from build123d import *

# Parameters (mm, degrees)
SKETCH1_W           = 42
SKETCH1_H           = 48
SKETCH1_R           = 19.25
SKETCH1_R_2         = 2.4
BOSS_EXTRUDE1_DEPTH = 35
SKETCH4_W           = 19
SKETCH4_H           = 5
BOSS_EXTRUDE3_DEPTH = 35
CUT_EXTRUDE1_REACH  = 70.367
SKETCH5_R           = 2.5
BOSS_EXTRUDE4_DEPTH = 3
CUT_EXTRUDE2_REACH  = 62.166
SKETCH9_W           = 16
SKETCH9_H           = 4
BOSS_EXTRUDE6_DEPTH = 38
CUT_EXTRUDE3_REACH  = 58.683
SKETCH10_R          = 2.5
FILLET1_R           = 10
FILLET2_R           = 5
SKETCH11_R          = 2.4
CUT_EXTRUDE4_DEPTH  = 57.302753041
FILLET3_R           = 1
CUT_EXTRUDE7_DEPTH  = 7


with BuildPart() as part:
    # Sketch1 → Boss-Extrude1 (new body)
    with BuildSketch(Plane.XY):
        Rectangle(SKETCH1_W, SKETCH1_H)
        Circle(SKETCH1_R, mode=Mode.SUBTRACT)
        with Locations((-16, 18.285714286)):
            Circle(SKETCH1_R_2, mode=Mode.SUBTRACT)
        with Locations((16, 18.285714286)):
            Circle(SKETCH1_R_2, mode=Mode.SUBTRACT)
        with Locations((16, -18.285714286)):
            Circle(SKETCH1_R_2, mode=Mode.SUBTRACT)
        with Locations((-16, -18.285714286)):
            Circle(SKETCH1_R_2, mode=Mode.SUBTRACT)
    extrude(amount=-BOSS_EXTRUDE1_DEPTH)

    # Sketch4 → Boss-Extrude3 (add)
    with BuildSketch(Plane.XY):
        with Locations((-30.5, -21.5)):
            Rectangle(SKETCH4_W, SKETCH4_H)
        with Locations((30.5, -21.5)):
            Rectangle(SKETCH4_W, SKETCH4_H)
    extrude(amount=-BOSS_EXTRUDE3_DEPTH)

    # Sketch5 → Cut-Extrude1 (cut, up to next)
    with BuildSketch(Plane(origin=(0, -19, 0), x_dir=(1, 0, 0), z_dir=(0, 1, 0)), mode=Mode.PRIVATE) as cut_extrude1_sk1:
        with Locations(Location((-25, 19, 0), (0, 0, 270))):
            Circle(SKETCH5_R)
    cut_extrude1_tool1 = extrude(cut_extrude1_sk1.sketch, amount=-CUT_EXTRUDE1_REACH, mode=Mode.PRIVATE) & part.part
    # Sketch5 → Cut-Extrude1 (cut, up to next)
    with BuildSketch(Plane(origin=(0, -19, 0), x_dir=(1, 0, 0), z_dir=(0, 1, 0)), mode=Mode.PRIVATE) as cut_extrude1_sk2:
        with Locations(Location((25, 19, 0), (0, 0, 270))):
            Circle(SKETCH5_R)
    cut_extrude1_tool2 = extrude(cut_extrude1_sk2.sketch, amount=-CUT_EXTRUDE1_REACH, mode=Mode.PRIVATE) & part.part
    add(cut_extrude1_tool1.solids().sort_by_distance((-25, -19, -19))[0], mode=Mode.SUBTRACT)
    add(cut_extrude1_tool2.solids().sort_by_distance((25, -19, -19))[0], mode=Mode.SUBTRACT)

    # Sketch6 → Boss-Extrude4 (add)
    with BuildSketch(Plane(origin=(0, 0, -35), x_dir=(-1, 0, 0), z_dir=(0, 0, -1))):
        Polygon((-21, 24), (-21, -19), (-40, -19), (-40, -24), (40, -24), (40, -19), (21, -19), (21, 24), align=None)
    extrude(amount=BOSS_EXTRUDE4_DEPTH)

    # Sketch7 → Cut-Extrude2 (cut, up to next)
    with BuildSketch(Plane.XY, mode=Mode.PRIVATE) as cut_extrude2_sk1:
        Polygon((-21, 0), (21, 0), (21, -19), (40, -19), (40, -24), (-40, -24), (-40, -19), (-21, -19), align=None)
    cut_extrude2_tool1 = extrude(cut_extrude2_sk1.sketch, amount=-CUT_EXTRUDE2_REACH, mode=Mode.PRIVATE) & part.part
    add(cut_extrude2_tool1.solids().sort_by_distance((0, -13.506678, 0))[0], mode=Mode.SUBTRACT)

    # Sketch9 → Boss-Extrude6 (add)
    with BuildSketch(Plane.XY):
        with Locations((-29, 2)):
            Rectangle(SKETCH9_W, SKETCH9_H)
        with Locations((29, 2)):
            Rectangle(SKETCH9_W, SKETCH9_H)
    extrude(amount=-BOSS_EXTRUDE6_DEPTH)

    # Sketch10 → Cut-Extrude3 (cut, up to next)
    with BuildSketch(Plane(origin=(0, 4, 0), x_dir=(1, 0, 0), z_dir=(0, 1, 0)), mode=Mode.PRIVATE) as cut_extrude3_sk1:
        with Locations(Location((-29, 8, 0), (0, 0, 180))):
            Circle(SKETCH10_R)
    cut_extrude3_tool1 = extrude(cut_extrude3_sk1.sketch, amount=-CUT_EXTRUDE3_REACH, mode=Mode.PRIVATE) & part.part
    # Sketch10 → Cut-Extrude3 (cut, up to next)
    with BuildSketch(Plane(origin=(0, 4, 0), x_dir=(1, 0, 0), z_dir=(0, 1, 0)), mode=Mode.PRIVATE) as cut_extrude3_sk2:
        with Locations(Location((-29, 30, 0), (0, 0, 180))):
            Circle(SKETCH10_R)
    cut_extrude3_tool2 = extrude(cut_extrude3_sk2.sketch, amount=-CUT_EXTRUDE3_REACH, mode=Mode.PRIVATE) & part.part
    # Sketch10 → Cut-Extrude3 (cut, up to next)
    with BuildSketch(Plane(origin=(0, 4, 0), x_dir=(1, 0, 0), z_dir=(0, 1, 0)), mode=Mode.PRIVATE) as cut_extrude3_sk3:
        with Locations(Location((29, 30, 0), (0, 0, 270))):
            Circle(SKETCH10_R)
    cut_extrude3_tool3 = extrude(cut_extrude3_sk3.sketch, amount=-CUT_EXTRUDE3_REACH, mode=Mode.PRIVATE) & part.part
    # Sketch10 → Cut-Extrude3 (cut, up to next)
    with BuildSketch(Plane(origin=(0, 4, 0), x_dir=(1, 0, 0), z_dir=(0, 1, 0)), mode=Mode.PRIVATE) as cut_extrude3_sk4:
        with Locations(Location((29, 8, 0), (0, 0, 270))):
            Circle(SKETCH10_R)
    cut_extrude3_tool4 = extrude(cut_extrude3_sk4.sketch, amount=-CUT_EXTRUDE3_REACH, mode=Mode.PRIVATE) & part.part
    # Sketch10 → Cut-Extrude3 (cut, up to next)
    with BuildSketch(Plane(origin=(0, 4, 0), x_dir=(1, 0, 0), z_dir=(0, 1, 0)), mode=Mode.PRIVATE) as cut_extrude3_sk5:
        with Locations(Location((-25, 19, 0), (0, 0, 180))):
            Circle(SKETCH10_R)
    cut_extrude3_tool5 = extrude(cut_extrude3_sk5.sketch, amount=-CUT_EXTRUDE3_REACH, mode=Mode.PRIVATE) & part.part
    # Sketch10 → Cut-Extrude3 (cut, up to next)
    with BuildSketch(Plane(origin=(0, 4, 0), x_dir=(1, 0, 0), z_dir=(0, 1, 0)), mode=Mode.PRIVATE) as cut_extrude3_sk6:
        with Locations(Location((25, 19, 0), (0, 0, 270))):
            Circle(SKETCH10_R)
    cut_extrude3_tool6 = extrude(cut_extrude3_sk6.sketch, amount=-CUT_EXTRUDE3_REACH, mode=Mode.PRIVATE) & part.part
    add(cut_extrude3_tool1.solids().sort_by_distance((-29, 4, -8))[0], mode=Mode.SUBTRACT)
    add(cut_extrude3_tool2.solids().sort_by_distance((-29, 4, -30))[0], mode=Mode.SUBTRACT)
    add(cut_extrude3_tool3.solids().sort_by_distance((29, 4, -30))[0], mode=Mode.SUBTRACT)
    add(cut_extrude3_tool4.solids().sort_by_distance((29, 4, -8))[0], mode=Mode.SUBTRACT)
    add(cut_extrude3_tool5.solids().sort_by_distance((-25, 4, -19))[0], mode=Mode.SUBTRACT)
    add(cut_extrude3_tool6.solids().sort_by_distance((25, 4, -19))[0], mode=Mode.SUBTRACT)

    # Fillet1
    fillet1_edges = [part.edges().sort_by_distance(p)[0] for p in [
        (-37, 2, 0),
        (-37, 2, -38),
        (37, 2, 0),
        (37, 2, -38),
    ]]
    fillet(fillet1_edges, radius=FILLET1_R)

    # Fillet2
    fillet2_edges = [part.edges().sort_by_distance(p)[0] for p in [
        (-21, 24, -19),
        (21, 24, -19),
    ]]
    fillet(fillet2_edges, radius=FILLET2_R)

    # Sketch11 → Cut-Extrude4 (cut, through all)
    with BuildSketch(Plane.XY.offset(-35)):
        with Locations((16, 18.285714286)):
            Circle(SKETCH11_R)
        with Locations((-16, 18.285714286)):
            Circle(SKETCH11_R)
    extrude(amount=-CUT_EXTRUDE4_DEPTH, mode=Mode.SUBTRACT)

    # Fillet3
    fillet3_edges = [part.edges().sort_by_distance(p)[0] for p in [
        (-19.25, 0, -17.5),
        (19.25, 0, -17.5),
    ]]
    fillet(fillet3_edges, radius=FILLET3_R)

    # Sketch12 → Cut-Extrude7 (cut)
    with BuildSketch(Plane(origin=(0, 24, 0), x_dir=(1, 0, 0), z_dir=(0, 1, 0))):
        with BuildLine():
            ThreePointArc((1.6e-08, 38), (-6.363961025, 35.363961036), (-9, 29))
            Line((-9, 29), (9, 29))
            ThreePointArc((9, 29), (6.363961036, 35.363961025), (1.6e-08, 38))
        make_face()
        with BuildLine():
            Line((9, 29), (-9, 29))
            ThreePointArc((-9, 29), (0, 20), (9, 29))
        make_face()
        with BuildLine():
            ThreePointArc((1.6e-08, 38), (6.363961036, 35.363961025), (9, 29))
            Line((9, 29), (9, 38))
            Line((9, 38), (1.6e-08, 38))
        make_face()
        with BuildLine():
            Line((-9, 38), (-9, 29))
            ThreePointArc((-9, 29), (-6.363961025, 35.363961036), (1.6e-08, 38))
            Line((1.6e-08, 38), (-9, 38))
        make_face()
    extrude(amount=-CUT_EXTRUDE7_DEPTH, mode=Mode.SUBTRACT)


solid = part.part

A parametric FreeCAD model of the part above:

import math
import FreeCAD as App
import Part
import Sketcher
from FreeCAD import Vector
Q = App.Units.Quantity


def edges_at(feature, points):
    """Names of the edges that pass closest to the given points."""
    edges = feature.Shape.Edges
    near = lambda p: min(range(len(edges)), key=lambda i: edges[i].distToShape(Part.Vertex(*p))[0])
    return sorted({f"Edge{near(p) + 1}" for p in points})


def add_polygon(sketch, points):
    """Adds a closed chain of lines whose ends are joined by coincident constraints."""
    first, n = sketch.GeometryCount, len(points)
    for a, b in zip(points, points[1:] + points[:1]):
        sketch.addGeometry(Part.LineSegment(App.Vector(*a, 0), App.Vector(*b, 0)), False)
    for i in range(n):
        sketch.addConstraint(Sketcher.Constraint("Coincident", first + i, 2, first + (i + 1) % n, 1))

doc = App.newDocument("Part")
body = doc.addObject("PartDesign::Body", "Body")

sketch1 = body.newObject("Sketcher::SketchObject", "Sketch")
sketch1.AttachmentSupport = (doc.getObject("XY_Plane"), [""])
sketch1.MapMode = "FlatFace"
add_polygon(sketch1, [(-21, 24), (-21, -24), (21, -24), (21, 24)])
sketch1.addGeometry(Part.Circle(Vector(-16, -18.285714, 0), Vector(0, 0, 1), 2.4), False)
sketch1.addGeometry(Part.Circle(Vector(16, -18.285714, 0), Vector(0, 0, 1), 2.4), False)
sketch1.addGeometry(Part.Circle(Vector(-16, 18.285714, 0), Vector(0, 0, 1), 2.4), False)
sketch1.addGeometry(Part.Circle(Vector(0, 0, 0), Vector(0, 0, 1), 19.25), False)
sketch1.addGeometry(Part.Circle(Vector(16, 18.285714, 0), Vector(0, 0, 1), 2.4), False)
sketch1.addConstraint([
    Sketcher.Constraint("Vertical", 0),
    Sketcher.Constraint("Horizontal", 1),
    Sketcher.Constraint("Vertical", 2),
    Sketcher.Constraint("Horizontal", 3),
    Sketcher.Constraint("Coincident", 7, 3, -1, 1),
    Sketcher.Constraint("Equal", 4, 5),
    Sketcher.Constraint("Equal", 5, 6),
    Sketcher.Constraint("Equal", 6, 8),
    Sketcher.Constraint("Symmetric", 5, 3, 6, 3, -1, 1),
    Sketcher.Constraint("Symmetric", 4, 3, 8, 3, -1, 1),
    Sketcher.Constraint("Symmetric", 0, 2, 2, 2, -1, 1),
    Sketcher.Constraint("Symmetric", 4, 3, 5, 3, -2),
    Sketcher.Constraint("Diameter", 4, Q("4.8 mm")),
    Sketcher.Constraint("Diameter", 7, Q("38.5 mm")),
    Sketcher.Constraint("DistanceX", 1, 1, 1, 2, Q("42 mm")),
    Sketcher.Constraint("DistanceY", 0, 2, 0, 1, Q("48 mm")),
    Sketcher.Constraint("DistanceX", 4, 3, -1, 1, Q("16 mm")),
    Sketcher.Constraint("DistanceY", 4, 3, 6, 3, Q("36.571429 mm")),
])
pad1 = body.newObject("PartDesign::Pad", "Pad")
pad1.Profile = sketch1
pad1.Length = 35
pad1.Reversed = True

sketch2 = body.newObject("Sketcher::SketchObject", "Sketch001")
sketch2.AttachmentSupport = (doc.getObject("XY_Plane"), [""])
sketch2.MapMode = "FlatFace"
add_polygon(sketch2, [(-40, -19), (-40, -24), (-21, -24), (-21, -19)])
add_polygon(sketch2, [(21, -19), (21, -24), (40, -24), (40, -19)])
sketch2.addConstraint([
    Sketcher.Constraint("Vertical", 0),
    Sketcher.Constraint("Horizontal", 1),
    Sketcher.Constraint("Vertical", 2),
    Sketcher.Constraint("Horizontal", 3),
    Sketcher.Constraint("Vertical", 4),
    Sketcher.Constraint("Horizontal", 5),
    Sketcher.Constraint("Vertical", 6),
    Sketcher.Constraint("Horizontal", 7),
    Sketcher.Constraint("Symmetric", 1, 2, 4, 2, -2),
    Sketcher.Constraint("Symmetric", 3, 2, 6, 2, -2),
    Sketcher.Constraint("DistanceX", 1, 1, 1, 2, Q("19 mm")),
    Sketcher.Constraint("DistanceY", 0, 2, 0, 1, Q("5 mm")),
    Sketcher.Constraint("DistanceX", 0, 2, -1, 1, Q("40 mm")),
    Sketcher.Constraint("DistanceY", 0, 2, -1, 1, Q("24 mm")),
])
pad2 = body.newObject("PartDesign::Pad", "Pad001")
pad2.Profile = sketch2
pad2.Length = 35
pad2.Reversed = True

sketch3 = body.newObject("Sketcher::SketchObject", "Sketch002")
sketch3.AttachmentSupport = (doc.getObject("XZ_Plane"), [""])
sketch3.MapMode = "FlatFace"
sketch3.AttachmentOffset = App.Placement(Vector(0, 0, 19), App.Rotation())
sketch3.addGeometry(Part.Circle(Vector(-25, -19, 0), Vector(0, 0, 1), 2.5), False)
sketch3.addConstraint([
    Sketcher.Constraint("Diameter", 0, Q("5 mm")),
    Sketcher.Constraint("DistanceX", 0, 3, -1, 1, Q("25 mm")),
    Sketcher.Constraint("DistanceY", 0, 3, -1, 1, Q("19 mm")),
])
pocket1 = body.newObject("PartDesign::Pocket", "Pocket")
pocket1.Profile = sketch3
pocket1.Type = "UpToFirst"
pocket1.Reversed = True

sketch4 = body.newObject("Sketcher::SketchObject", "Sketch003")
sketch4.AttachmentSupport = (doc.getObject("XZ_Plane"), [""])
sketch4.MapMode = "FlatFace"
sketch4.AttachmentOffset = App.Placement(Vector(0, 0, 19), App.Rotation())
sketch4.addGeometry(Part.Circle(Vector(25, -19, 0), Vector(0, 0, 1), 2.5), False)
sketch4.addConstraint([
    Sketcher.Constraint("Diameter", 0, Q("5 mm")),
    Sketcher.Constraint("DistanceX", -1, 1, 0, 3, Q("25 mm")),
    Sketcher.Constraint("DistanceY", 0, 3, -1, 1, Q("19 mm")),
])
pocket2 = body.newObject("PartDesign::Pocket", "Pocket001")
pocket2.Profile = sketch4
pocket2.Type = "UpToFirst"
pocket2.Reversed = True

sketch5 = body.newObject("Sketcher::SketchObject", "Sketch004")
sketch5.AttachmentSupport = (doc.getObject("XY_Plane"), [""])
sketch5.MapMode = "FlatFace"
sketch5.AttachmentOffset = App.Placement(Vector(0, 0, -35), App.Rotation())
add_polygon(sketch5, [(21, 24), (21, -19), (40, -19), (40, -24), (-40, -24), (-40, -19), (-21, -19), (-21, 24)])
sketch5.addConstraint([
    Sketcher.Constraint("Vertical", 0),
    Sketcher.Constraint("Horizontal", 1),
    Sketcher.Constraint("Vertical", 2),
    Sketcher.Constraint("Horizontal", 3),
    Sketcher.Constraint("Vertical", 4),
    Sketcher.Constraint("Horizontal", 5),
    Sketcher.Constraint("Vertical", 6),
    Sketcher.Constraint("Horizontal", 7),
    Sketcher.Constraint("Symmetric", 1, 2, 4, 2, -2),
    Sketcher.Constraint("Equal", 1, 5),
    Sketcher.Constraint("DistanceX", 1, 1, 1, 2, Q("19 mm")),
    Sketcher.Constraint("DistanceX", 3, 2, 3, 1, Q("80 mm")),
    Sketcher.Constraint("DistanceY", 0, 2, 0, 1, Q("43 mm")),
    Sketcher.Constraint("DistanceY", 2, 2, 2, 1, Q("5 mm")),
    Sketcher.Constraint("DistanceY", 0, 2, -1, 1, Q("19 mm")),
])
pad3 = body.newObject("PartDesign::Pad", "Pad002")
pad3.Profile = sketch5
pad3.Length = 3
pad3.Reversed = True

sketch6 = body.newObject("Sketcher::SketchObject", "Sketch005")
sketch6.AttachmentSupport = (doc.getObject("XY_Plane"), [""])
sketch6.MapMode = "FlatFace"
add_polygon(sketch6, [(21, 0), (-21, 0), (-21, -19), (-40, -19), (-40, -24), (40, -24), (40, -19), (21, -19)])
sketch6.addConstraint([
    Sketcher.Constraint("Horizontal", 0),
    Sketcher.Constraint("Vertical", 1),
    Sketcher.Constraint("Horizontal", 2),
    Sketcher.Constraint("Vertical", 3),
    Sketcher.Constraint("Horizontal", 4),
    Sketcher.Constraint("Vertical", 5),
    Sketcher.Constraint("Horizontal", 6),
    Sketcher.Constraint("Vertical", 7),
    Sketcher.Constraint("Symmetric", 0, 2, 7, 2, -1, 1),
    Sketcher.Constraint("Symmetric", 2, 2, 5, 2, -2),
    Sketcher.Constraint("Equal", 6, 1),
    Sketcher.Constraint("DistanceX", 0, 2, 0, 1, Q("42 mm")),
    Sketcher.Constraint("DistanceX", 2, 2, 2, 1, Q("19 mm")),
    Sketcher.Constraint("DistanceY", 3, 2, 3, 1, Q("5 mm")),
])
pocket3 = body.newObject("PartDesign::Pocket", "Pocket002")
pocket3.Profile = sketch6
pocket3.Length = 38

sketch7 = body.newObject("Sketcher::SketchObject", "Sketch006")
sketch7.AttachmentSupport = (doc.getObject("XY_Plane"), [""])
sketch7.MapMode = "FlatFace"
add_polygon(sketch7, [(-37, 4), (-37, 0), (-21, 0), (-21, 4)])
add_polygon(sketch7, [(21, 4), (21, 0), (37, 0), (37, 4)])
sketch7.addConstraint([
    Sketcher.Constraint("Vertical", 0),
    Sketcher.Constraint("Horizontal", 1),
    Sketcher.Constraint("Vertical", 2),
    Sketcher.Constraint("Horizontal", 3),
    Sketcher.Constraint("Vertical", 4),
    Sketcher.Constraint("Horizontal", 5),
    Sketcher.Constraint("Vertical", 6),
    Sketcher.Constraint("Horizontal", 7),
    Sketcher.Constraint("Symmetric", 1, 2, 4, 2, -1, 1),
    Sketcher.Constraint("Symmetric", 0, 2, 5, 2, -2),
    Sketcher.Constraint("Horizontal", 3, 2, 6, 2),
    Sketcher.Constraint("DistanceX", 1, 1, 1, 2, Q("16 mm")),
    Sketcher.Constraint("DistanceY", 0, 2, 0, 1, Q("4 mm")),
    Sketcher.Constraint("DistanceX", 0, 2, -1, 1, Q("37 mm")),
])
pad4 = body.newObject("PartDesign::Pad", "Pad003")
pad4.Profile = sketch7
pad4.Length = 38
pad4.Reversed = True

sketch8 = body.newObject("Sketcher::SketchObject", "Sketch007")
sketch8.AttachmentSupport = (doc.getObject("XZ_Plane"), [""])
sketch8.MapMode = "FlatFace"
sketch8.AttachmentOffset = App.Placement(Vector(0, 0, -4), App.Rotation())
sketch8.addGeometry(Part.Circle(Vector(-29, -8, 0), Vector(0, 0, 1), 2.5), False)
sketch8.addConstraint([
    Sketcher.Constraint("Diameter", 0, Q("5 mm")),
    Sketcher.Constraint("DistanceX", 0, 3, -1, 1, Q("29 mm")),
    Sketcher.Constraint("DistanceY", 0, 3, -1, 1, Q("8 mm")),
])
pocket4 = body.newObject("PartDesign::Pocket", "Pocket003")
pocket4.Profile = sketch8
pocket4.Type = "UpToFirst"
pocket4.Reversed = True

sketch9 = body.newObject("Sketcher::SketchObject", "Sketch008")
sketch9.AttachmentSupport = (doc.getObject("XZ_Plane"), [""])
sketch9.MapMode = "FlatFace"
sketch9.AttachmentOffset = App.Placement(Vector(0, 0, -4), App.Rotation())
sketch9.addGeometry(Part.Circle(Vector(-29, -30, 0), Vector(0, 0, 1), 2.5), False)
sketch9.addConstraint([
    Sketcher.Constraint("Diameter", 0, Q("5 mm")),
    Sketcher.Constraint("DistanceX", 0, 3, -1, 1, Q("29 mm")),
    Sketcher.Constraint("DistanceY", 0, 3, -1, 1, Q("30 mm")),
])
pocket5 = body.newObject("PartDesign::Pocket", "Pocket004")
pocket5.Profile = sketch9
pocket5.Type = "UpToFirst"
pocket5.Reversed = True

sketch10 = body.newObject("Sketcher::SketchObject", "Sketch009")
sketch10.AttachmentSupport = (doc.getObject("XZ_Plane"), [""])
sketch10.MapMode = "FlatFace"
sketch10.AttachmentOffset = App.Placement(Vector(0, 0, -4), App.Rotation())
sketch10.addGeometry(Part.Circle(Vector(29, -30, 0), Vector(0, 0, 1), 2.5), False)
sketch10.addConstraint([
    Sketcher.Constraint("Diameter", 0, Q("5 mm")),
    Sketcher.Constraint("DistanceX", -1, 1, 0, 3, Q("29 mm")),
    Sketcher.Constraint("DistanceY", 0, 3, -1, 1, Q("30 mm")),
])
pocket6 = body.newObject("PartDesign::Pocket", "Pocket005")
pocket6.Profile = sketch10
pocket6.Type = "UpToFirst"
pocket6.Reversed = True

sketch11 = body.newObject("Sketcher::SketchObject", "Sketch010")
sketch11.AttachmentSupport = (doc.getObject("XZ_Plane"), [""])
sketch11.MapMode = "FlatFace"
sketch11.AttachmentOffset = App.Placement(Vector(0, 0, -4), App.Rotation())
sketch11.addGeometry(Part.Circle(Vector(29, -8, 0), Vector(0, 0, 1), 2.5), False)
sketch11.addConstraint([
    Sketcher.Constraint("Diameter", 0, Q("5 mm")),
    Sketcher.Constraint("DistanceX", -1, 1, 0, 3, Q("29 mm")),
    Sketcher.Constraint("DistanceY", 0, 3, -1, 1, Q("8 mm")),
])
pocket7 = body.newObject("PartDesign::Pocket", "Pocket006")
pocket7.Profile = sketch11
pocket7.Type = "UpToFirst"
pocket7.Reversed = True

sketch12 = body.newObject("Sketcher::SketchObject", "Sketch011")
sketch12.AttachmentSupport = (doc.getObject("XZ_Plane"), [""])
sketch12.MapMode = "FlatFace"
sketch12.AttachmentOffset = App.Placement(Vector(0, 0, -4), App.Rotation())
sketch12.addGeometry(Part.Circle(Vector(-25, -19, 0), Vector(0, 0, 1), 2.5), False)
sketch12.addConstraint([
    Sketcher.Constraint("Diameter", 0, Q("5 mm")),
    Sketcher.Constraint("DistanceX", 0, 3, -1, 1, Q("25 mm")),
    Sketcher.Constraint("DistanceY", 0, 3, -1, 1, Q("19 mm")),
])
pocket8 = body.newObject("PartDesign::Pocket", "Pocket007")
pocket8.Profile = sketch12
pocket8.Type = "UpToFirst"
pocket8.Reversed = True

sketch13 = body.newObject("Sketcher::SketchObject", "Sketch012")
sketch13.AttachmentSupport = (doc.getObject("XZ_Plane"), [""])
sketch13.MapMode = "FlatFace"
sketch13.AttachmentOffset = App.Placement(Vector(0, 0, -4), App.Rotation())
sketch13.addGeometry(Part.Circle(Vector(25, -19, 0), Vector(0, 0, 1), 2.5), False)
sketch13.addConstraint([
    Sketcher.Constraint("Diameter", 0, Q("5 mm")),
    Sketcher.Constraint("DistanceX", -1, 1, 0, 3, Q("25 mm")),
    Sketcher.Constraint("DistanceY", 0, 3, -1, 1, Q("19 mm")),
])
pocket9 = body.newObject("PartDesign::Pocket", "Pocket008")
pocket9.Profile = sketch13
pocket9.Type = "UpToFirst"
pocket9.Reversed = True
doc.recompute()

fillet = body.newObject("PartDesign::Fillet", "Fillet")
fillet.Base = (pocket9, edges_at(pocket9, [
    (-37, 2, 0),
    (-37, 2, -38),
    (37, 2, 0),
    (37, 2, -38),
]))
fillet.Radius = 10
doc.recompute()

fillet2 = body.newObject("PartDesign::Fillet", "Fillet001")
fillet2.Base = (fillet, edges_at(fillet, [(-21, 24, -19), (21, 24, -19)]))
fillet2.Radius = 5

sketch14 = body.newObject("Sketcher::SketchObject", "Sketch013")
sketch14.AttachmentSupport = (doc.getObject("XY_Plane"), [""])
sketch14.MapMode = "FlatFace"
sketch14.AttachmentOffset = App.Placement(Vector(0, 0, -35), App.Rotation())
sketch14.addGeometry([
    Part.Circle(Vector(16, 18.285714, 0), Vector(0, 0, 1), 2.4),
    Part.Circle(Vector(-16, 18.285714, 0), Vector(0, 0, 1), 2.4),
], False)
sketch14.addConstraint([
    Sketcher.Constraint("Equal", 0, 1),
    Sketcher.Constraint("Symmetric", 0, 3, 1, 3, -2),
    Sketcher.Constraint("Diameter", 0, Q("4.8 mm")),
    Sketcher.Constraint("DistanceX", -1, 1, 0, 3, Q("16 mm")),
    Sketcher.Constraint("DistanceY", -1, 1, 0, 3, Q("18.285714 mm")),
])
pocket10 = body.newObject("PartDesign::Pocket", "Pocket009")
pocket10.Profile = sketch14
pocket10.Type = "ThroughAll"
doc.recompute()

fillet3 = body.newObject("PartDesign::Fillet", "Fillet002")
fillet3.Base = (pocket10, edges_at(pocket10, [(-19.25, 0, -17.5), (19.25, 0, -17.5)]))
fillet3.Radius = 1

sketch15 = body.newObject("Sketcher::SketchObject", "Sketch014")
sketch15.AttachmentSupport = (doc.getObject("XZ_Plane"), [""])
sketch15.MapMode = "FlatFace"
sketch15.AttachmentOffset = App.Placement(Vector(0, 0, -24), App.Rotation())
sketch15.addGeometry([
    Part.ArcOfCircle(Part.Circle(Vector(0, -29, 0), Vector(0, 0, 1), 9), math.radians(0), math.radians(180)),
    Part.LineSegment(Vector(9, -29, 0), Vector(9, -38, 0)),
    Part.LineSegment(Vector(9, -38, 0), Vector(-9, -38, 0)),
    Part.LineSegment(Vector(-9, -38, 0), Vector(-9, -29, 0)),
], False)
sketch15.addConstraint([
    Sketcher.Constraint("Tangent", 0, 1, 1, 1),
    Sketcher.Constraint("Coincident", 1, 2, 2, 1),
    Sketcher.Constraint("Coincident", 2, 2, 3, 1),
    Sketcher.Constraint("Tangent", 3, 2, 0, 2),
    Sketcher.Constraint("Vertical", 1),
    Sketcher.Constraint("Horizontal", 2),
    Sketcher.Constraint("Vertical", 3),
    Sketcher.Constraint("PointOnObject", 0, 3, -2),
    Sketcher.Constraint("Radius", 0, Q("9 mm")),
    Sketcher.Constraint("DistanceY", 1, 2, 1, 1, Q("9 mm")),
    Sketcher.Constraint("DistanceY", 0, 3, -1, 1, Q("29 mm")),
])
pocket11 = body.newObject("PartDesign::Pocket", "Pocket010")
pocket11.Profile = sketch15
pocket11.Length = 7
pocket11.Reversed = True

doc.recompute()
